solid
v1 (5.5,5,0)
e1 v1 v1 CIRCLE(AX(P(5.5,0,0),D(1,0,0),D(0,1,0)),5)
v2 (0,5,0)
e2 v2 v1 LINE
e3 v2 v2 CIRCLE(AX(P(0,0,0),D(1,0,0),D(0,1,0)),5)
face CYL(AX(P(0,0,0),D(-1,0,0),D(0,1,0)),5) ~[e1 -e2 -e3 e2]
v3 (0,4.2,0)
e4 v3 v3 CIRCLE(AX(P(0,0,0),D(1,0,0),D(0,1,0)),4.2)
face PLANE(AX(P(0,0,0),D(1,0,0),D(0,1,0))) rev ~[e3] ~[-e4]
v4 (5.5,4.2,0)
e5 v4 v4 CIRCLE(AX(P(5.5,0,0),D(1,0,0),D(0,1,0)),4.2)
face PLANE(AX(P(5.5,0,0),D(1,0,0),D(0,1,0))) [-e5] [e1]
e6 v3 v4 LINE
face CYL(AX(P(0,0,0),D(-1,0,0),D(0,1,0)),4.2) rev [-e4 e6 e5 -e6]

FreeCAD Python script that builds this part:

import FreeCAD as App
import Part
import Sketcher

V = App.Vector
Q = App.Units.Quantity

doc = App.newDocument("Part")
body = doc.addObject("PartDesign::Body", "Body")

sketch1 = body.newObject("Sketcher::SketchObject", "Sketch")
sketch1.AttachmentSupport = (doc.getObject("YZ_Plane"), [""])
sketch1.MapMode = "FlatFace"
sketch1.addGeometry([
    Part.Circle(V(0, 0, 0), V(0, 0, 1), 5),
    Part.Circle(V(0, 0, 0), V(0, 0, 1), 4.2),
], False)
sketch1.addConstraint([
    Sketcher.Constraint("Coincident", 0, 3, -1, 1),
    Sketcher.Constraint("Coincident", 1, 3, -1, 1),
    Sketcher.Constraint("Diameter", 0, Q("10 mm")),
    Sketcher.Constraint("Diameter", 1, Q("8.4 mm")),
])
pad1 = body.newObject("PartDesign::Pad", "Pad")
pad1.Profile = sketch1
pad1.Length = 5.5

doc.recompute()
